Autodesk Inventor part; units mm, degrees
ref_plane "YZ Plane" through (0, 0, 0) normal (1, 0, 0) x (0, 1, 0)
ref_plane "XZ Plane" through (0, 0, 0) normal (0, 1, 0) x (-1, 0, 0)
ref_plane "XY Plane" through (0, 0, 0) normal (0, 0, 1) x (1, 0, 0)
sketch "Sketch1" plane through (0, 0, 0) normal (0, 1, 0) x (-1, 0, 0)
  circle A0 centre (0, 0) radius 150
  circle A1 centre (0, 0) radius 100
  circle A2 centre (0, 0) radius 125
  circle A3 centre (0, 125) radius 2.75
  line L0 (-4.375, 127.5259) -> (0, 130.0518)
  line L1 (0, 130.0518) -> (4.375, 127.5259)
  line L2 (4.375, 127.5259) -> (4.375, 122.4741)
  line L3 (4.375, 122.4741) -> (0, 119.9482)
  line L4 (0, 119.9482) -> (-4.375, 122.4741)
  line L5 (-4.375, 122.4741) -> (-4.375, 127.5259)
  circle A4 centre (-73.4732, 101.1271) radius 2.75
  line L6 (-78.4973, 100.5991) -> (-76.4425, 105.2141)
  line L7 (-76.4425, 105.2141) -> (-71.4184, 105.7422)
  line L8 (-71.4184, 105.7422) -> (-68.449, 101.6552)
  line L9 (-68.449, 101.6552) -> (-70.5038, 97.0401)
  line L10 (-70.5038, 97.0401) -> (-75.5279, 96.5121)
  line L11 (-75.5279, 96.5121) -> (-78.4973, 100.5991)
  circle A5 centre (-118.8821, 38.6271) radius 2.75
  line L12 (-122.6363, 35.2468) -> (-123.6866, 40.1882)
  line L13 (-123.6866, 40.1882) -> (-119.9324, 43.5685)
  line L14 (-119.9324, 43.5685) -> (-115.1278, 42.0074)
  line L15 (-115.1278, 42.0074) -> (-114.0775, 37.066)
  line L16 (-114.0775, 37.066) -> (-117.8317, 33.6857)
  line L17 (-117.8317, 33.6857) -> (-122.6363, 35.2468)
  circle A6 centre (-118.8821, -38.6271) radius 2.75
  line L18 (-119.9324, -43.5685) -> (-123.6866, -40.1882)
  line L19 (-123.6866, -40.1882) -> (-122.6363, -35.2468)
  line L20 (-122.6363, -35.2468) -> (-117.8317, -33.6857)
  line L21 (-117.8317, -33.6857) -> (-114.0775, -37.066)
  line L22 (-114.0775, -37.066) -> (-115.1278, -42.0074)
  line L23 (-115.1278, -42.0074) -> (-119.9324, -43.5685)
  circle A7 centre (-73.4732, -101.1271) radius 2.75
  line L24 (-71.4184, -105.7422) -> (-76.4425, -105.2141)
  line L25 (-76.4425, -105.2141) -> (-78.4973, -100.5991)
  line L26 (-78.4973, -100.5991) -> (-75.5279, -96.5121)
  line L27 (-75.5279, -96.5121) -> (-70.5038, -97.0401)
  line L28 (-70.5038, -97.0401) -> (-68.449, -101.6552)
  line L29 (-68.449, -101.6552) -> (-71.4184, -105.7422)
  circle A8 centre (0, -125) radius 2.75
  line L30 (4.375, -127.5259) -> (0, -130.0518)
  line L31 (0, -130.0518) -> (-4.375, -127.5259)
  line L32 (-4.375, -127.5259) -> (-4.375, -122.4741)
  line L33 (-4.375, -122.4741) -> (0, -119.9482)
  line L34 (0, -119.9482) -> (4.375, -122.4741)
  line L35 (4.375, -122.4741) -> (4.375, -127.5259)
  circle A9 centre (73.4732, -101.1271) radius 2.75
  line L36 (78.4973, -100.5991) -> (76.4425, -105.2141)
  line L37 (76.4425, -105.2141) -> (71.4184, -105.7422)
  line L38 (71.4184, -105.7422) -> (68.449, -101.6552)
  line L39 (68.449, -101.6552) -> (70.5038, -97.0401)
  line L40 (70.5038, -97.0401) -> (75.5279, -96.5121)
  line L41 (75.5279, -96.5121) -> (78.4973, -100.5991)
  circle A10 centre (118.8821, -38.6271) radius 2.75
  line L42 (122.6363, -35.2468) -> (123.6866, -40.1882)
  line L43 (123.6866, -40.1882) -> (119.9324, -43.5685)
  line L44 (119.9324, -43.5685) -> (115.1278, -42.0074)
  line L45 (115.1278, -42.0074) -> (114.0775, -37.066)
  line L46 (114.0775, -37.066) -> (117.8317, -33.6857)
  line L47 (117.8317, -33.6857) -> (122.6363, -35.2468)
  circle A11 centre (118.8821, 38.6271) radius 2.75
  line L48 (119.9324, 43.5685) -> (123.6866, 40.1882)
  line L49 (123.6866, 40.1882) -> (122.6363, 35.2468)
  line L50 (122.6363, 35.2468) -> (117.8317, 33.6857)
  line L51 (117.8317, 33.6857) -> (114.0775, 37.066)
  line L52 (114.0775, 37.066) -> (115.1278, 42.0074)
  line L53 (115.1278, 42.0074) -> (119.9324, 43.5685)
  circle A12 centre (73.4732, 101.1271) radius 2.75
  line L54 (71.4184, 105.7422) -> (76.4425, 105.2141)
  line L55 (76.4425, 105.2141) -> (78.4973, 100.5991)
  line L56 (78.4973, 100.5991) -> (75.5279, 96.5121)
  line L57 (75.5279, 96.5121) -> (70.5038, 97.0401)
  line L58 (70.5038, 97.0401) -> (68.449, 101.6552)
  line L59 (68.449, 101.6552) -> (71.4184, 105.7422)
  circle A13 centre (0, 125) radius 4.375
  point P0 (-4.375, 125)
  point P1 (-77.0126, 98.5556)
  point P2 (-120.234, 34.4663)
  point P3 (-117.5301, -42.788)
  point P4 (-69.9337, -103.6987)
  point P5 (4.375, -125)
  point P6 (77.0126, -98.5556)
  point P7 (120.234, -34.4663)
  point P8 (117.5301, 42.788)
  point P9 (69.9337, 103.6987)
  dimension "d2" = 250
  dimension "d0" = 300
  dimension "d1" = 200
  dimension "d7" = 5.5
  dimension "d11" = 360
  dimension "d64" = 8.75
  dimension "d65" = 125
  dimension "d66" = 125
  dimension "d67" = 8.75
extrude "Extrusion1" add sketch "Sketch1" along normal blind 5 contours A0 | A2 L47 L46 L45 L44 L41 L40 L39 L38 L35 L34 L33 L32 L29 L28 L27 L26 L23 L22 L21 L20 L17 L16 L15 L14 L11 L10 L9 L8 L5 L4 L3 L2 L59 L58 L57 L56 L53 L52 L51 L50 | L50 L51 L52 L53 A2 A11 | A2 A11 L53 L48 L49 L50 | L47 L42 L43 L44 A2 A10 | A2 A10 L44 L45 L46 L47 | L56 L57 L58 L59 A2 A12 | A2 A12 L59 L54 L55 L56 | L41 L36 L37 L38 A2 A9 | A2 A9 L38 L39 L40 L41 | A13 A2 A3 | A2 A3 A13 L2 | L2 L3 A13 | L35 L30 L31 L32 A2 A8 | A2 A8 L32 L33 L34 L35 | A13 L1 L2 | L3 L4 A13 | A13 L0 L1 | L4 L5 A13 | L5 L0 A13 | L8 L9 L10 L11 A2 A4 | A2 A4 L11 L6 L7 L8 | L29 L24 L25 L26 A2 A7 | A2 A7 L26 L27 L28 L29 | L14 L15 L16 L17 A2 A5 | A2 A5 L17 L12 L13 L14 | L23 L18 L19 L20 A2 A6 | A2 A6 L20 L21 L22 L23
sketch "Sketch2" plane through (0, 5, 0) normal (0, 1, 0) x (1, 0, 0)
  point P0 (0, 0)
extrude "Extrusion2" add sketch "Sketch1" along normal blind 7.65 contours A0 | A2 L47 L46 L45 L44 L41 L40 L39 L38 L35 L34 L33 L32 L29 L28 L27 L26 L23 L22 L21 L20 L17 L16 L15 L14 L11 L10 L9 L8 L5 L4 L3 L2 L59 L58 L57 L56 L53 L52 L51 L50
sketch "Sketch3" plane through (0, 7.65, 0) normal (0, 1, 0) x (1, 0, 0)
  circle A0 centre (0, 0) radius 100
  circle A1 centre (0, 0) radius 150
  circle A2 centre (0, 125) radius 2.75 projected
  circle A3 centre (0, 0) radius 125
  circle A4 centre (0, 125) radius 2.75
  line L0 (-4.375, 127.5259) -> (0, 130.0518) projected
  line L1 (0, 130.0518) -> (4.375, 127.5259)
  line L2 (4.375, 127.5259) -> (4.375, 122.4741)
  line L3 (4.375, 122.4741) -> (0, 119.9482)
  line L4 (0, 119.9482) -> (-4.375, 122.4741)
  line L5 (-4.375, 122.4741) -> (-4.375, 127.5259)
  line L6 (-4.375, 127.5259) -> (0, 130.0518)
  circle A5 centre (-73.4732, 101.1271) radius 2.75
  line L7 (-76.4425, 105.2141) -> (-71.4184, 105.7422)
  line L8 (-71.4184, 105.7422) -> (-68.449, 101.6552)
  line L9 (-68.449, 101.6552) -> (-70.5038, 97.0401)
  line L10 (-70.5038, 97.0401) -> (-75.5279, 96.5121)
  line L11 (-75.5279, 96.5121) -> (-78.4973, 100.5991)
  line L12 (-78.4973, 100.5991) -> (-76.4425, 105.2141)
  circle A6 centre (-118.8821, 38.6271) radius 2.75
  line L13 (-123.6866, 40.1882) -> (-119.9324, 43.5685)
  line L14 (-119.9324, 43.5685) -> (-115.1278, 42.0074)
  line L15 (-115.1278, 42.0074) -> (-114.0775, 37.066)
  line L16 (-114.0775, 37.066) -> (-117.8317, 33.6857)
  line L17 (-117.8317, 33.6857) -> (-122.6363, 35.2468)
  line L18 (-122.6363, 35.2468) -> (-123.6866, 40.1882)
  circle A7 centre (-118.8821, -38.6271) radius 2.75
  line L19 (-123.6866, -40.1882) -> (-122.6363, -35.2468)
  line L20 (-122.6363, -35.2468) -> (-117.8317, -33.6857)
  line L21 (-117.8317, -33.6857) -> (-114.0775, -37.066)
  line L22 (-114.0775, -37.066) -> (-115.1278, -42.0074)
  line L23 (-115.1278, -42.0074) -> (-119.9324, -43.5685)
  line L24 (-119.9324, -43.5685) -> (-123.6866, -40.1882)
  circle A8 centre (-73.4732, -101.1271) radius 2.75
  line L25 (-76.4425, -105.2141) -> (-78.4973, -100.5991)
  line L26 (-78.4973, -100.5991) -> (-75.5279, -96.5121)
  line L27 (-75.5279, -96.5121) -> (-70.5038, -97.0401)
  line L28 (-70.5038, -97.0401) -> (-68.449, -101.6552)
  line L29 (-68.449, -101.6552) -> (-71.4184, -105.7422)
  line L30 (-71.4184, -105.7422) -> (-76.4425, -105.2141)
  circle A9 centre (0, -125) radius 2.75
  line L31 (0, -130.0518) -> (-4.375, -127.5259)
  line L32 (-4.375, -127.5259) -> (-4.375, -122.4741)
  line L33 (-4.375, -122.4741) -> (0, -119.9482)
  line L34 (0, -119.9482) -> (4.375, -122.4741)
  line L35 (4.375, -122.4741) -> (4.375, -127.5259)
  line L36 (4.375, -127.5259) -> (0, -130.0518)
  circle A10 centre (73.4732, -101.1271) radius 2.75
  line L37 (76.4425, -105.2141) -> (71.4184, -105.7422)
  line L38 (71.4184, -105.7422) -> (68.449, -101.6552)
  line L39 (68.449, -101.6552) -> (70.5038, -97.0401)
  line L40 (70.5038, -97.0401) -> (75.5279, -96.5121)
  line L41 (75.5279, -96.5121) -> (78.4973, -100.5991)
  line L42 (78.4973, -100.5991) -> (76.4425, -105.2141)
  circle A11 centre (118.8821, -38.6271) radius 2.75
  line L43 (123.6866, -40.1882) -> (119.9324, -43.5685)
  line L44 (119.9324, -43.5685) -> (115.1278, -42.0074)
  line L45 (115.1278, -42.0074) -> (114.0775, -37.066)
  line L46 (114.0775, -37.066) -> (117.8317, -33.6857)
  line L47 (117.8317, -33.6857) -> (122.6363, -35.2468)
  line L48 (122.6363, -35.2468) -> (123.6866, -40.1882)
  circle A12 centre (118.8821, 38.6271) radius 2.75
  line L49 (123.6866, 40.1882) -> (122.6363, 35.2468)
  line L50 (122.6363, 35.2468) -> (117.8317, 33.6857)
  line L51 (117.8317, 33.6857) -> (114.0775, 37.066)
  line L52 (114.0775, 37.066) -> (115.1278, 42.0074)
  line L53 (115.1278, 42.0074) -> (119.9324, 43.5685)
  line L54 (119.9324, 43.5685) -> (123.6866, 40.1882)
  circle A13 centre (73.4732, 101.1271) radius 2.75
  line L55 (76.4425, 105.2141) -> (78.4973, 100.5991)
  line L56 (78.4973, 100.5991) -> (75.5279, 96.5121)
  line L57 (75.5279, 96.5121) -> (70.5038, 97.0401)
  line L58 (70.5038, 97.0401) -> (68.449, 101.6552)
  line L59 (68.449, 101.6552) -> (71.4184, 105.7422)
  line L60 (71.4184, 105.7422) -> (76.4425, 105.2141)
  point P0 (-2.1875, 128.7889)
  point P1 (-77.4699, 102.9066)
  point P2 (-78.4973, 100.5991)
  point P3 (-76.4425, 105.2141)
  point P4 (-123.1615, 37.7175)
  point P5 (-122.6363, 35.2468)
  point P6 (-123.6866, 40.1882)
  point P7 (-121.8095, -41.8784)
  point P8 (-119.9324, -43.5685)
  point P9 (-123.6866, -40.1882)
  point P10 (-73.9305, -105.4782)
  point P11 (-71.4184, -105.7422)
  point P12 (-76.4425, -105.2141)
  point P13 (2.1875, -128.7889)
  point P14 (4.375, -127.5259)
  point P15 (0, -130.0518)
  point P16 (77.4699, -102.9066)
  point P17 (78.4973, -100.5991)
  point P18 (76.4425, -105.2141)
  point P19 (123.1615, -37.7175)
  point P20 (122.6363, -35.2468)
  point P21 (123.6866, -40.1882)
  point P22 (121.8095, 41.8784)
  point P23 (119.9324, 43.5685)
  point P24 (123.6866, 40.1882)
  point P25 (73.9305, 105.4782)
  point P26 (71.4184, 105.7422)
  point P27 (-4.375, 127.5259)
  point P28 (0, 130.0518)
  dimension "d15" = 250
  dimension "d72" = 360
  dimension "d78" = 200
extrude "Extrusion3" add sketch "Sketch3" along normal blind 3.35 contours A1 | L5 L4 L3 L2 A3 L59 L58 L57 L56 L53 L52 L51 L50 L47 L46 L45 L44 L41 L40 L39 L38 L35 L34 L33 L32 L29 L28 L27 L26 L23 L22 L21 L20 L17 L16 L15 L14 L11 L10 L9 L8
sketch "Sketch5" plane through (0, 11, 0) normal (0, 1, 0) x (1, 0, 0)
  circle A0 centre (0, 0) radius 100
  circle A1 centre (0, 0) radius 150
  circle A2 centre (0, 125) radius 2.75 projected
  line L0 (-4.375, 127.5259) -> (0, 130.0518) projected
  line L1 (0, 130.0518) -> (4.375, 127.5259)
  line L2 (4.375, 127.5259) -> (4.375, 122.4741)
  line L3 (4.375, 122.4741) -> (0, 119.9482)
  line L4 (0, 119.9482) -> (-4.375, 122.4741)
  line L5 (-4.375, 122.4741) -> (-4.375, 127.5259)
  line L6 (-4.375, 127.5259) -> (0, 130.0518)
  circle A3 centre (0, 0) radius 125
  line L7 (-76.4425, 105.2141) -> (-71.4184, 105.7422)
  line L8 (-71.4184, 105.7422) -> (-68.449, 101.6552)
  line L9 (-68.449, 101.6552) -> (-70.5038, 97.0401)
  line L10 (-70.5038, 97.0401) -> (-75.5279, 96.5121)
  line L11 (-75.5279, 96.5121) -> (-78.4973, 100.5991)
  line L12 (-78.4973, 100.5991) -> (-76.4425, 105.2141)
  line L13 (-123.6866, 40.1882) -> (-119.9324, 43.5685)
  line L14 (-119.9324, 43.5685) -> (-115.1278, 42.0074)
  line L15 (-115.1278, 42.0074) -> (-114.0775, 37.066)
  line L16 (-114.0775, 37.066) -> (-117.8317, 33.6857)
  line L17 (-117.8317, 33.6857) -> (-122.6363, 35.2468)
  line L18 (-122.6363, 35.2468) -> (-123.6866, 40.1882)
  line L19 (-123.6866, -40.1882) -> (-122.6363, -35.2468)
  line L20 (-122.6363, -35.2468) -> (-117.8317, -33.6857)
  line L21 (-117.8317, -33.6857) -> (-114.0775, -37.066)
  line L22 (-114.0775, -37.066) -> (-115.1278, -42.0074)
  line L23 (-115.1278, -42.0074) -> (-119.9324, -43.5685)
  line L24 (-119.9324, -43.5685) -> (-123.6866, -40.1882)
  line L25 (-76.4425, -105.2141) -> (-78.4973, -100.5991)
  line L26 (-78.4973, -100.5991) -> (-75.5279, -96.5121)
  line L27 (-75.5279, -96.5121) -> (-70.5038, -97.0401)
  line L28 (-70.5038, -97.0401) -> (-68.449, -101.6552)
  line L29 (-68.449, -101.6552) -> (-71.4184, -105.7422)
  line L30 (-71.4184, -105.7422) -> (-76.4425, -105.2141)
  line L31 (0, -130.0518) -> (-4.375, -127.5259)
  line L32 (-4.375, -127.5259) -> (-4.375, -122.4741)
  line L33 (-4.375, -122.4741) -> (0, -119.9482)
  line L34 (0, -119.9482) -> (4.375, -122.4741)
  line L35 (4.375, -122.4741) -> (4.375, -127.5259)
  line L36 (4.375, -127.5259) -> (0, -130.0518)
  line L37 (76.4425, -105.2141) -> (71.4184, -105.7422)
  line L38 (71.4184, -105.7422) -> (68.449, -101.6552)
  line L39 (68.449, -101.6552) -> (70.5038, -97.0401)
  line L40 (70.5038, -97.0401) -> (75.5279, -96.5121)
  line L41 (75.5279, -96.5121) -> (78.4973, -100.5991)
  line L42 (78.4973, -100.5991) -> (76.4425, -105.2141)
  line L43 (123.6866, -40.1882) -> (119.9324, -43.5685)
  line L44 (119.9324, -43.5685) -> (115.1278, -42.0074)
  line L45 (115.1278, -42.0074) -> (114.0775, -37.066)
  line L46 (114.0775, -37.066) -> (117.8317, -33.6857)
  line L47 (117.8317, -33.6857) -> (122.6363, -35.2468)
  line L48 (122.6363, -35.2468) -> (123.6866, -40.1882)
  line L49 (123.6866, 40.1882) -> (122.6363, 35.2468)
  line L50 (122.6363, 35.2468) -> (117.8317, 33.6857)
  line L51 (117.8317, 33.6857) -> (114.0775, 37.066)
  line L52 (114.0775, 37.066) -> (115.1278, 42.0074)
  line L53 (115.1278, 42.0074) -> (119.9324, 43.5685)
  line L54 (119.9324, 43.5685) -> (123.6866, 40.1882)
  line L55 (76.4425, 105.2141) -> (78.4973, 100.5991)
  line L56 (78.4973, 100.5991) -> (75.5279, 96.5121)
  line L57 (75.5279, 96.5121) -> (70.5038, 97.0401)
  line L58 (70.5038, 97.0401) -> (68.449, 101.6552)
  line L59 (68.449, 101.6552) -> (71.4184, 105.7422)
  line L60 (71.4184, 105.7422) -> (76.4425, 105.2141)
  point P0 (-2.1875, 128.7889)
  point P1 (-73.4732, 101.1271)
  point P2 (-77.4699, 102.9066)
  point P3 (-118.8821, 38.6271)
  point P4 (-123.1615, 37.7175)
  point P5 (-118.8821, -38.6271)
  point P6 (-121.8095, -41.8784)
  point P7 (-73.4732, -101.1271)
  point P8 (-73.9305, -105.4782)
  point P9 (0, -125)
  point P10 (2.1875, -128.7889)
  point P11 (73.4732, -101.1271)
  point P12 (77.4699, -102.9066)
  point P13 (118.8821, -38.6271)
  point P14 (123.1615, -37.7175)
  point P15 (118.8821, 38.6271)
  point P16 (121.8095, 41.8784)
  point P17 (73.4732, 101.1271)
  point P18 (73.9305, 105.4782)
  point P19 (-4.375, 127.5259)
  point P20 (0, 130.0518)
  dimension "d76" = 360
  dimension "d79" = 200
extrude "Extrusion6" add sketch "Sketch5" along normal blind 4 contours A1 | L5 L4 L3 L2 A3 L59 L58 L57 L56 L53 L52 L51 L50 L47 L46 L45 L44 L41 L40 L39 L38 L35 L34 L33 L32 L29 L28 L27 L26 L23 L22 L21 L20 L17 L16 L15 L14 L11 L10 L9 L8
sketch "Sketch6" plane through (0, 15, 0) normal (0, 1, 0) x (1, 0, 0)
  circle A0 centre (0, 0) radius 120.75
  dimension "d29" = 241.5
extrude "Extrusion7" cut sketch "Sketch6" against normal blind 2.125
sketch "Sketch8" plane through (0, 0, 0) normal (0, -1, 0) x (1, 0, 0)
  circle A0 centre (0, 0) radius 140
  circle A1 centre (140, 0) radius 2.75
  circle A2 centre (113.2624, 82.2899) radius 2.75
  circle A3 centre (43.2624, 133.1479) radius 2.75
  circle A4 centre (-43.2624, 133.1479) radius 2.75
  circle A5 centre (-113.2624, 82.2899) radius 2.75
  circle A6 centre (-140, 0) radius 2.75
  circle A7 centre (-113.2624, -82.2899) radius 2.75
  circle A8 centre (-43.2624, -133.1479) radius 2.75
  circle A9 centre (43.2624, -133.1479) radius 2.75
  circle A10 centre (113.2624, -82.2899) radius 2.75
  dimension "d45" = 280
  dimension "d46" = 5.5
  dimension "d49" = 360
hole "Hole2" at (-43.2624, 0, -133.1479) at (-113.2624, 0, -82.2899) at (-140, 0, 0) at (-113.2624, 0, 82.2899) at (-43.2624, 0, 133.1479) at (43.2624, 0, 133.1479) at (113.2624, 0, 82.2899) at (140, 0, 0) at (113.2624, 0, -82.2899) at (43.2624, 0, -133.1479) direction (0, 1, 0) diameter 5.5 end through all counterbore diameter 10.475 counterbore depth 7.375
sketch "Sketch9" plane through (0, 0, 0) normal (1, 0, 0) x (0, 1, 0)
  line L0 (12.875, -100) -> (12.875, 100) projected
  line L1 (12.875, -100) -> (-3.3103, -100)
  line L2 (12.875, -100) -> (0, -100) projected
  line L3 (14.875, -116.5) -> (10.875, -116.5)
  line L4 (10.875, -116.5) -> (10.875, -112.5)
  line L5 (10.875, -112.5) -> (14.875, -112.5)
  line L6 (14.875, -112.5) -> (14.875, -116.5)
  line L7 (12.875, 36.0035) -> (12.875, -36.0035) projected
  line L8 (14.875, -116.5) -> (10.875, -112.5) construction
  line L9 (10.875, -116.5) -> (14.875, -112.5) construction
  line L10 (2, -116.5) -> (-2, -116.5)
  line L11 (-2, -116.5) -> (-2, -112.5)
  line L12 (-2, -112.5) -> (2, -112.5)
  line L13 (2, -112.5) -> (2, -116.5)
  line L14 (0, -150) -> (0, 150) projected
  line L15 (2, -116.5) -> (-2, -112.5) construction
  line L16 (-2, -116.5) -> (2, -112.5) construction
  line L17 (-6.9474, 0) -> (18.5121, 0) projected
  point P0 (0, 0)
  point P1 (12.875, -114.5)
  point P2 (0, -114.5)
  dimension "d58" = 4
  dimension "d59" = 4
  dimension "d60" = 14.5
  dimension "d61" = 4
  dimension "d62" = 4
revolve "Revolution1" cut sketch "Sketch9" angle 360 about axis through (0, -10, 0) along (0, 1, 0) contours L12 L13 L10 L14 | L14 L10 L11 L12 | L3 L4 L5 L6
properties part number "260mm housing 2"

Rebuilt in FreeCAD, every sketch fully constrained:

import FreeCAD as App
import Part
import Sketcher
from FreeCAD import Vector
Q = App.Units.Quantity


def add_polygon(sketch, points):
    """Adds a closed chain of lines whose ends are joined by coincident constraints."""
    first, n = sketch.GeometryCount, len(points)
    for a, b in zip(points, points[1:] + points[:1]):
        sketch.addGeometry(Part.LineSegment(App.Vector(*a, 0), App.Vector(*b, 0)), False)
    for i in range(n):
        sketch.addConstraint(Sketcher.Constraint("Coincident", first + i, 2, first + (i + 1) % n, 1))

doc = App.newDocument("Part")
body = doc.addObject("PartDesign::Body", "Body")

# Sketch on XZ plane
sketch1 = body.newObject("Sketcher::SketchObject", "Sketch")
sketch1.AttachmentSupport = (doc.getObject("XZ_Plane"), [""])
sketch1.MapMode = "FlatFace"
sketch1.addGeometry([
    Part.Circle(Vector(0, 0, 0), Vector(0, 0, 1), 150),  # 0
    Part.Circle(Vector(0, 0, 0), Vector(0, 0, 1), 100),  # 1
    Part.Circle(Vector(-118.8821, 38.6271, 0), Vector(0, 0, 1), 2.75),  # 2
    Part.Circle(Vector(-73.4732, 101.1271, 0), Vector(0, 0, 1), 2.75),  # 3
    Part.Circle(Vector(0, 125, 0), Vector(0, 0, 1), 2.75),  # 4
    Part.Circle(Vector(73.4732, 101.1271, 0), Vector(0, 0, 1), 2.75),  # 5
    Part.Circle(Vector(118.8821, 38.6271, 0), Vector(0, 0, 1), 2.75),  # 6
    Part.Circle(Vector(118.8821, -38.6271, 0), Vector(0, 0, 1), 2.75),  # 7
    Part.Circle(Vector(73.4732, -101.1271, 0), Vector(0, 0, 1), 2.75),  # 8
    Part.Circle(Vector(0, -125, 0), Vector(0, 0, 1), 2.75),  # 9
    Part.Circle(Vector(-73.4732, -101.1271, 0), Vector(0, 0, 1), 2.75),  # 10
    Part.Circle(Vector(-118.8821, -38.6271, 0), Vector(0, 0, 1), 2.75),  # 11
], False)
sketch1.addConstraint([
    Sketcher.Constraint("Coincident", 0, 3, -1, 1),
    Sketcher.Constraint("Coincident", 1, 3, -1, 1),
    Sketcher.Constraint("Equal", 2, 3),
    Sketcher.Constraint("Equal", 3, 4),
    Sketcher.Constraint("Equal", 4, 5),
    Sketcher.Constraint("Equal", 5, 6),
    Sketcher.Constraint("Equal", 6, 7),
    Sketcher.Constraint("Equal", 7, 8),
    Sketcher.Constraint("Equal", 8, 9),
    Sketcher.Constraint("Equal", 9, 10),
    Sketcher.Constraint("Equal", 10, 11),
    Sketcher.Constraint("Symmetric", 2, 3, 7, 3, -1, 1),
    Sketcher.Constraint("Symmetric", 3, 3, 8, 3, -1, 1),
    Sketcher.Constraint("Symmetric", 4, 3, 9, 3, -1, 1),
    Sketcher.Constraint("Symmetric", 5, 3, 10, 3, -1, 1),
    Sketcher.Constraint("Symmetric", 6, 3, 11, 3, -1, 1),
    Sketcher.Constraint("Symmetric", 3, 3, 5, 3, -2),
    Sketcher.Constraint("Symmetric", 2, 3, 6, 3, -2),
    Sketcher.Constraint("PointOnObject", 4, 3, -2),
    Sketcher.Constraint("Diameter", 0, Q("300 mm")),
    Sketcher.Constraint("Diameter", 1, Q("200 mm")),
    Sketcher.Constraint("Diameter", 2, Q("5.5 mm")),
    Sketcher.Constraint("DistanceY", -1, 1, 4, 3, Q("125 mm")),
    Sketcher.Constraint("DistanceY", 2, 3, 3, 3, Q("62.5 mm")),
    Sketcher.Constraint("DistanceX", 2, 3, -1, 1, Q("118.882 mm")),
    Sketcher.Constraint("DistanceY", -1, 1, 2, 3, Q("38.627 mm")),
    Sketcher.Constraint("DistanceX", 2, 3, 3, 3, Q("45.409 mm")),
])
pad1 = body.newObject("PartDesign::Pad", "Pad")
pad1.Profile = sketch1
pad1.Length = 5
pad1.Reversed = True

# Sketch on XZ plane
sketch2 = body.newObject("Sketcher::SketchObject", "Sketch001")
sketch2.AttachmentSupport = (doc.getObject("XZ_Plane"), [""])
sketch2.MapMode = "FlatFace"
sketch2.addGeometry(Part.Circle(Vector(0, 0, 0), Vector(0, 0, 1), 150), False)  # 0
add_polygon(sketch2, [(-122.6363, 35.2468), (-117.8317, 33.6857), (-114.0775, 37.066), (-115.1278, 42.0074), (-119.9324, 43.5685), (-123.6866, 40.1882)])  # lines 1-6
add_polygon(sketch2, [(-78.4973, 100.5991), (-75.5279, 96.5121), (-70.5038, 97.0401), (-68.449, 101.6552), (-71.4184, 105.7422), (-76.4425, 105.2141)])  # lines 7-12
add_polygon(sketch2, [(-4.375, 122.4741), (0, 119.9482), (4.375, 122.4741), (4.375, 127.5259), (0, 130.0518), (-4.375, 127.5259)])  # lines 13-18
add_polygon(sketch2, [(71.4184, 105.7422), (68.449, 101.6552), (70.5038, 97.0401), (75.5279, 96.5121), (78.4973, 100.5991), (76.4425, 105.2141)])  # lines 19-24
add_polygon(sketch2, [(119.9324, 43.5685), (115.1278, 42.0074), (114.0775, 37.066), (117.8317, 33.6857), (122.6363, 35.2468), (123.6866, 40.1882)])  # lines 25-30
add_polygon(sketch2, [(122.6363, -35.2468), (117.8317, -33.6857), (114.0775, -37.066), (115.1278, -42.0074), (119.9324, -43.5685), (123.6866, -40.1882)])  # lines 31-36
add_polygon(sketch2, [(78.4973, -100.5991), (75.5279, -96.5121), (70.5038, -97.0401), (68.449, -101.6552), (71.4184, -105.7422), (76.4425, -105.2141)])  # lines 37-42
add_polygon(sketch2, [(4.375, -127.5259), (4.375, -122.4741), (0, -119.9482), (-4.375, -122.4741), (-4.375, -127.5259), (0, -130.0518)])  # lines 43-48
add_polygon(sketch2, [(-71.4184, -105.7422), (-68.449, -101.6552), (-70.5038, -97.0401), (-75.5279, -96.5121), (-78.4973, -100.5991), (-76.4425, -105.2141)])  # lines 49-54
add_polygon(sketch2, [(-119.9324, -43.5685), (-115.1278, -42.0074), (-114.0775, -37.066), (-117.8317, -33.6857), (-122.6363, -35.2468), (-123.6866, -40.1882)])  # lines 55-60
sketch2.addGeometry(Part.Circle(Vector(0, 0, 0), Vector(0, 0, 1), 100), False)  # 61
sketch2.addConstraint([
    Sketcher.Constraint("Vertical", 15),
    Sketcher.Constraint("Vertical", 18),
    Sketcher.Constraint("Vertical", 43),
    Sketcher.Constraint("Vertical", 46),
    Sketcher.Constraint("Coincident", 0, 3, -1, 1),
    Sketcher.Constraint("Coincident", 61, 3, -1, 1),
    Sketcher.Constraint("Symmetric", 1, 2, 31, 2, -1, 1),
    Sketcher.Constraint("Symmetric", 2, 2, 32, 2, -1, 1),
    Sketcher.Constraint("Symmetric", 3, 2, 33, 2, -1, 1),
    Sketcher.Constraint("Symmetric", 4, 2, 34, 2, -1, 1),
    Sketcher.Constraint("Symmetric", 5, 2, 35, 2, -1, 1),
    Sketcher.Constraint("Symmetric", 6, 2, 36, 2, -1, 1),
    Sketcher.Constraint("Symmetric", 7, 2, 37, 2, -1, 1),
    Sketcher.Constraint("Symmetric", 8, 2, 38, 2, -1, 1),
    Sketcher.Constraint("Symmetric", 9, 2, 39, 2, -1, 1),
    Sketcher.Constraint("Symmetric", 10, 2, 40, 2, -1, 1),
    Sketcher.Constraint("Symmetric", 11, 2, 41, 2, -1, 1),
    Sketcher.Constraint("Symmetric", 12, 2, 42, 2, -1, 1),
    Sketcher.Constraint("Symmetric", 18, 2, 43, 2, -1, 1),
    Sketcher.Constraint("Symmetric", 13, 2, 44, 2, -1, 1),
    Sketcher.Constraint("Symmetric", 14, 2, 45, 2, -1, 1),
    Sketcher.Constraint("Symmetric", 16, 2, 47, 2, -1, 1),
    Sketcher.Constraint("Symmetric", 19, 2, 49, 2, -1, 1),
    Sketcher.Constraint("Symmetric", 20, 2, 50, 2, -1, 1),
    Sketcher.Constraint("Symmetric", 21, 2, 51, 2, -1, 1),
    Sketcher.Constraint("Symmetric", 22, 2, 52, 2, -1, 1),
    Sketcher.Constraint("Symmetric", 23, 2, 53, 2, -1, 1),
    Sketcher.Constraint("Symmetric", 24, 2, 54, 2, -1, 1),
    Sketcher.Constraint("Symmetric", 25, 2, 55, 2, -1, 1),
    Sketcher.Constraint("Symmetric", 26, 2, 56, 2, -1, 1),
    Sketcher.Constraint("Symmetric", 27, 2, 57, 2, -1, 1),
    Sketcher.Constraint("Symmetric", 28, 2, 58, 2, -1, 1),
    Sketcher.Constraint("Symmetric", 29, 2, 59, 2, -1, 1),
    Sketcher.Constraint("Symmetric", 30, 2, 60, 2, -1, 1),
    Sketcher.Constraint("Symmetric", 15, 2, 17, 2, -2),
    Sketcher.Constraint("Symmetric", 9, 2, 19, 2, -2),
    Sketcher.Constraint("Symmetric", 8, 2, 20, 2, -2),
    Sketcher.Constraint("Symmetric", 7, 2, 21, 2, -2),
    Sketcher.Constraint("Symmetric", 12, 2, 22, 2, -2),
    Sketcher.Constraint("Symmetric", 11, 2, 23, 2, -2),
    Sketcher.Constraint("Symmetric", 10, 2, 24, 2, -2),
    Sketcher.Constraint("Symmetric", 3, 2, 25, 2, -2),
    Sketcher.Constraint("Symmetric", 2, 2, 26, 2, -2),
    Sketcher.Constraint("Symmetric", 1, 2, 27, 2, -2),
    Sketcher.Constraint("Symmetric", 6, 2, 28, 2, -2),
    Sketcher.Constraint("Symmetric", 5, 2, 29, 2, -2),
    Sketcher.Constraint("Symmetric", 4, 2, 30, 2, -2),
    Sketcher.Constraint("PointOnObject", 13, 2, -2),
    Sketcher.Constraint("PointOnObject", 16, 2, -2),
    Sketcher.Constraint("Parallel", 1, 4),
    Sketcher.Constraint("Parallel", 2, 5),
    Sketcher.Constraint("Parallel", 3, 6),
    Sketcher.Constraint("Parallel", 7, 10),
    Sketcher.Constraint("Parallel", 8, 11),
    Sketcher.Constraint("Parallel", 9, 12),
    Sketcher.Constraint("Parallel", 13, 16),
    Sketcher.Constraint("Parallel", 14, 17),
    Sketcher.Constraint("Parallel", 44, 47),
    Sketcher.Constraint("Parallel", 45, 48),
    Sketcher.Constraint("Equal", 1, 2),
    Sketcher.Constraint("Equal", 2, 3),
    Sketcher.Constraint("Equal", 3, 4),
    Sketcher.Constraint("Equal", 6, 7),
    Sketcher.Constraint("Equal", 7, 8),
    Sketcher.Constraint("Equal", 8, 9),
    Sketcher.Constraint("Equal", 9, 10),
    Sketcher.Constraint("Equal", 12, 13),
    Sketcher.Constraint("Diameter", 0, Q("300 mm")),
    Sketcher.Constraint("Diameter", 61, Q("200 mm")),
    Sketcher.Constraint("Angle", 1, Q("-18 deg")),
    Sketcher.Constraint("Angle", 2, Q("42 deg")),
    Sketcher.Constraint("Angle", 3, Q("101.9997 deg")),
    Sketcher.Constraint("Angle", 7, Q("-53.9998 deg")),
    Sketcher.Constraint("Angle", 8, Q("5.9994 deg")),
    Sketcher.Constraint("Angle", 9, Q("65.9997 deg")),
    Sketcher.Constraint("Angle", 13, Q("-30 deg")),
    Sketcher.Constraint("DistanceY", -1, 1, 8, 2, Q("97.04 mm")),
    Sketcher.Constraint("DistanceY", 15, 1, 15, 2, Q("5.0518 mm")),
    Sketcher.Constraint("DistanceY", -1, 1, 2, 2, Q("37.066 mm")),
    Sketcher.Constraint("DistanceX", 7, 2, -1, 1, Q("75.528 mm")),
    Sketcher.Constraint("DistanceY", -1, 1, 7, 2, Q("96.512 mm")),
    Sketcher.Constraint("DistanceY", -1, 1, 14, 2, Q("122.474 mm")),
    Sketcher.Constraint("DistanceX", 1, 2, -1, 1, Q("117.8317 mm")),
])
pad2 = body.newObject("PartDesign::Pad", "Pad001")
pad2.Profile = sketch2
pad2.Length = 7.65
pad2.Reversed = True

# Sketch on XZ plane
sketch3 = body.newObject("Sketcher::SketchObject", "Sketch002")
sketch3.AttachmentSupport = (doc.getObject("XZ_Plane"), [""])
sketch3.MapMode = "FlatFace"
sketch3.AttachmentOffset = App.Placement(Vector(0, 0, -7.65), App.Rotation())
sketch3.addGeometry(Part.Circle(Vector(0, 0, 0), Vector(0, 0, 1), 150), False)  # 0
add_polygon(sketch3, [(-71.4184, -105.7422), (-68.449, -101.6552), (-70.5038, -97.0401), (-75.5279, -96.5121), (-78.4973, -100.5991), (-76.4425, -105.2141)])  # lines 1-6
add_polygon(sketch3, [(-119.9324, -43.5685), (-115.1278, -42.0074), (-114.0775, -37.066), (-117.8317, -33.6857), (-122.6363, -35.2468), (-123.6866, -40.1882)])  # lines 7-12
add_polygon(sketch3, [(-122.6363, 35.2468), (-117.8317, 33.6857), (-114.0775, 37.066), (-115.1278, 42.0074), (-119.9324, 43.5685), (-123.6866, 40.1882)])  # lines 13-18
add_polygon(sketch3, [(-78.4973, 100.5991), (-75.5279, 96.5121), (-70.5038, 97.0401), (-68.449, 101.6552), (-71.4184, 105.7422), (-76.4425, 105.2141)])  # lines 19-24
add_polygon(sketch3, [(-4.375, 127.5259), (-4.375, 122.4741), (0, 119.9482), (4.375, 122.4741), (4.375, 127.5259), (0, 130.0518)])  # lines 25-30
add_polygon(sketch3, [(71.4184, 105.7422), (68.449, 101.6552), (70.5038, 97.0401), (75.5279, 96.5121), (78.4973, 100.5991), (76.4425, 105.2141)])  # lines 31-36
add_polygon(sketch3, [(119.9324, 43.5685), (115.1278, 42.0074), (114.0775, 37.066), (117.8317, 33.6857), (122.6363, 35.2468), (123.6866, 40.1882)])  # lines 37-42
add_polygon(sketch3, [(122.6363, -35.2468), (117.8317, -33.6857), (114.0775, -37.066), (115.1278, -42.0074), (119.9324, -43.5685), (123.6866, -40.1882)])  # lines 43-48
add_polygon(sketch3, [(78.4973, -100.5991), (75.5279, -96.5121), (70.5038, -97.0401), (68.449, -101.6552), (71.4184, -105.7422), (76.4425, -105.2141)])  # lines 49-54
add_polygon(sketch3, [(4.375, -127.5259), (4.375, -122.4741), (0, -119.9482), (-4.375, -122.4741), (-4.375, -127.5259), (0, -130.0518)])  # lines 55-60
sketch3.addGeometry(Part.Circle(Vector(0, 0, 0), Vector(0, 0, 1), 100), False)  # 61
sketch3.addConstraint([
    Sketcher.Constraint("Vertical", 25),
    Sketcher.Constraint("Vertical", 28),
    Sketcher.Constraint("Vertical", 55),
    Sketcher.Constraint("Vertical", 58),
    Sketcher.Constraint("Coincident", 0, 3, -1, 1),
    Sketcher.Constraint("Coincident", 61, 3, -1, 1),
    Sketcher.Constraint("Symmetric", 1, 2, 31, 2, -1, 1),
    Sketcher.Constraint("Symmetric", 2, 2, 32, 2, -1, 1),
    Sketcher.Constraint("Symmetric", 3, 2, 33, 2, -1, 1),
    Sketcher.Constraint("Symmetric", 4, 2, 34, 2, -1, 1),
    Sketcher.Constraint("Symmetric", 5, 2, 35, 2, -1, 1),
    Sketcher.Constraint("Symmetric", 6, 2, 36, 2, -1, 1),
    Sketcher.Constraint("Symmetric", 7, 2, 37, 2, -1, 1),
    Sketcher.Constraint("Symmetric", 8, 2, 38, 2, -1, 1),
    Sketcher.Constraint("Symmetric", 9, 2, 39, 2, -1, 1),
    Sketcher.Constraint("Symmetric", 10, 2, 40, 2, -1, 1),
    Sketcher.Constraint("Symmetric", 11, 2, 41, 2, -1, 1),
    Sketcher.Constraint("Symmetric", 12, 2, 42, 2, -1, 1),
    Sketcher.Constraint("Symmetric", 13, 2, 43, 2, -1, 1),
    Sketcher.Constraint("Symmetric", 14, 2, 44, 2, -1, 1),
    Sketcher.Constraint("Symmetric", 15, 2, 45, 2, -1, 1),
    Sketcher.Constraint("Symmetric", 16, 2, 46, 2, -1, 1),
    Sketcher.Constraint("Symmetric", 17, 2, 47, 2, -1, 1),
    Sketcher.Constraint("Symmetric", 18, 2, 48, 2, -1, 1),
    Sketcher.Constraint("Symmetric", 19, 2, 49, 2, -1, 1),
    Sketcher.Constraint("Symmetric", 20, 2, 50, 2, -1, 1),
    Sketcher.Constraint("Symmetric", 21, 2, 51, 2, -1, 1),
    Sketcher.Constraint("Symmetric", 22, 2, 52, 2, -1, 1),
    Sketcher.Constraint("Symmetric", 23, 2, 53, 2, -1, 1),
    Sketcher.Constraint("Symmetric", 24, 2, 54, 2, -1, 1),
    Sketcher.Constraint("Symmetric", 25, 2, 55, 2, -1, 1),
    Sketcher.Constraint("Symmetric", 26, 2, 56, 2, -1, 1),
    Sketcher.Constraint("Symmetric", 27, 2, 57, 2, -1, 1),
    Sketcher.Constraint("Symmetric", 29, 2, 59, 2, -1, 1),
    Sketcher.Constraint("Symmetric", 25, 2, 27, 2, -2),
    Sketcher.Constraint("Symmetric", 21, 2, 31, 2, -2),
    Sketcher.Constraint("Symmetric", 20, 2, 32, 2, -2),
    Sketcher.Constraint("Symmetric", 19, 2, 33, 2, -2),
    Sketcher.Constraint("Symmetric", 24, 2, 34, 2, -2),
    Sketcher.Constraint("Symmetric", 23, 2, 35, 2, -2),
    Sketcher.Constraint("Symmetric", 22, 2, 36, 2, -2),
    Sketcher.Constraint("Symmetric", 15, 2, 37, 2, -2),
    Sketcher.Constraint("Symmetric", 14, 2, 38, 2, -2),
    Sketcher.Constraint("Symmetric", 13, 2, 39, 2, -2),
    Sketcher.Constraint("Symmetric", 18, 2, 40, 2, -2),
    Sketcher.Constraint("Symmetric", 17, 2, 41, 2, -2),
    Sketcher.Constraint("Symmetric", 16, 2, 42, 2, -2),
    Sketcher.Constraint("PointOnObject", 26, 2, -2),
    Sketcher.Constraint("PointOnObject", 29, 2, -2),
    Sketcher.Constraint("Parallel", 1, 4),
    Sketcher.Constraint("Parallel", 2, 5),
    Sketcher.Constraint("Parallel", 3, 6),
    Sketcher.Constraint("Parallel", 7, 10),
    Sketcher.Constraint("Parallel", 8, 11),
    Sketcher.Constraint("Parallel", 9, 12),
    Sketcher.Constraint("Parallel", 26, 29),
    Sketcher.Constraint("Parallel", 27, 30),
    Sketcher.Constraint("Parallel", 56, 59),
    Sketcher.Constraint("Parallel", 57, 60),
    Sketcher.Constraint("Equal", 1, 2),
    Sketcher.Constraint("Equal", 2, 3),
    Sketcher.Constraint("Equal", 3, 4),
    Sketcher.Constraint("Equal", 6, 7),
    Sketcher.Constraint("Equal", 7, 8),
    Sketcher.Constraint("Equal", 8, 9),
    Sketcher.Constraint("Equal", 9, 10),
    Sketcher.Constraint("Equal", 24, 26),
    Sketcher.Constraint("Diameter", 61, Q("200 mm")),
    Sketcher.Constraint("Diameter", 0, Q("300 mm")),
    Sketcher.Constraint("Angle", 1, Q("53.9998 deg")),
    Sketcher.Constraint("Angle", 2, Q("114.0003 deg")),
    Sketcher.Constraint("Angle", 3, Q("174.0006 deg")),
    Sketcher.Constraint("Angle", 7, Q("18 deg")),
    Sketcher.Constraint("Angle", 8, Q("78.0003 deg")),
    Sketcher.Constraint("Angle", 9, Q("138 deg")),
    Sketcher.Constraint("Angle", 26, Q("-30 deg")),
    Sketcher.Constraint("DistanceY", 2, 2, -1, 1, Q("97.04 mm")),
    Sketcher.Constraint("DistanceY", 25, 2, 25, 1, Q("5.0518 mm")),
    Sketcher.Constraint("DistanceX", 1, 2, -1, 1, Q("68.449 mm")),
    Sketcher.Constraint("DistanceX", 3, 2, -1, 1, Q("75.528 mm")),
    Sketcher.Constraint("DistanceY", 8, 2, -1, 1, Q("37.066 mm")),
    Sketcher.Constraint("DistanceY", -1, 1, 25, 2, Q("122.474 mm")),
    Sketcher.Constraint("DistanceX", 7, 2, -1, 1, Q("115.1278 mm")),
])
pad3 = body.newObject("PartDesign::Pad", "Pad002")
pad3.Profile = sketch3
pad3.Length = 3.35
pad3.Reversed = True

# Sketch on XZ plane
sketch4 = body.newObject("Sketcher::SketchObject", "Sketch003")
sketch4.AttachmentSupport = (doc.getObject("XZ_Plane"), [""])
sketch4.MapMode = "FlatFace"
sketch4.AttachmentOffset = App.Placement(Vector(0, 0, -11), App.Rotation())
sketch4.addGeometry(Part.Circle(Vector(0, 0, 0), Vector(0, 0, 1), 150), False)  # 0
add_polygon(sketch4, [(-71.4184, -105.7422), (-68.449, -101.6552), (-70.5038, -97.0401), (-75.5279, -96.5121), (-78.4973, -100.5991), (-76.4425, -105.2141)])  # lines 1-6
add_polygon(sketch4, [(-119.9324, -43.5685), (-115.1278, -42.0074), (-114.0775, -37.066), (-117.8317, -33.6857), (-122.6363, -35.2468), (-123.6866, -40.1882)])  # lines 7-12
add_polygon(sketch4, [(-122.6363, 35.2468), (-117.8317, 33.6857), (-114.0775, 37.066), (-115.1278, 42.0074), (-119.9324, 43.5685), (-123.6866, 40.1882)])  # lines 13-18
add_polygon(sketch4, [(-78.4973, 100.5991), (-75.5279, 96.5121), (-70.5038, 97.0401), (-68.449, 101.6552), (-71.4184, 105.7422), (-76.4425, 105.2141)])  # lines 19-24
add_polygon(sketch4, [(-4.375, 127.5259), (-4.375, 122.4741), (0, 119.9482), (4.375, 122.4741), (4.375, 127.5259), (0, 130.0518)])  # lines 25-30
add_polygon(sketch4, [(71.4184, 105.7422), (68.449, 101.6552), (70.5038, 97.0401), (75.5279, 96.5121), (78.4973, 100.5991), (76.4425, 105.2141)])  # lines 31-36
add_polygon(sketch4, [(119.9324, 43.5685), (115.1278, 42.0074), (114.0775, 37.066), (117.8317, 33.6857), (122.6363, 35.2468), (123.6866, 40.1882)])  # lines 37-42
add_polygon(sketch4, [(122.6363, -35.2468), (117.8317, -33.6857), (114.0775, -37.066), (115.1278, -42.0074), (119.9324, -43.5685), (123.6866, -40.1882)])  # lines 43-48
add_polygon(sketch4, [(78.4973, -100.5991), (75.5279, -96.5121), (70.5038, -97.0401), (68.449, -101.6552), (71.4184, -105.7422), (76.4425, -105.2141)])  # lines 49-54
add_polygon(sketch4, [(4.375, -127.5259), (4.375, -122.4741), (0, -119.9482), (-4.375, -122.4741), (-4.375, -127.5259), (0, -130.0518)])  # lines 55-60
sketch4.addGeometry(Part.Circle(Vector(0, 0, 0), Vector(0, 0, 1), 100), False)  # 61
sketch4.addConstraint([
    Sketcher.Constraint("Vertical", 25),
    Sketcher.Constraint("Vertical", 28),
    Sketcher.Constraint("Vertical", 55),
    Sketcher.Constraint("Vertical", 58),
    Sketcher.Constraint("Coincident", 0, 3, -1, 1),
    Sketcher.Constraint("Coincident", 61, 3, -1, 1),
    Sketcher.Constraint("Symmetric", 1, 2, 31, 2, -1, 1),
    Sketcher.Constraint("Symmetric", 2, 2, 32, 2, -1, 1),
    Sketcher.Constraint("Symmetric", 3, 2, 33, 2, -1, 1),
    Sketcher.Constraint("Symmetric", 4, 2, 34, 2, -1, 1),
    Sketcher.Constraint("Symmetric", 5, 2, 35, 2, -1, 1),
    Sketcher.Constraint("Symmetric", 6, 2, 36, 2, -1, 1),
    Sketcher.Constraint("Symmetric", 7, 2, 37, 2, -1, 1),
    Sketcher.Constraint("Symmetric", 8, 2, 38, 2, -1, 1),
    Sketcher.Constraint("Symmetric", 9, 2, 39, 2, -1, 1),
    Sketcher.Constraint("Symmetric", 10, 2, 40, 2, -1, 1),
    Sketcher.Constraint("Symmetric", 11, 2, 41, 2, -1, 1),
    Sketcher.Constraint("Symmetric", 12, 2, 42, 2, -1, 1),
    Sketcher.Constraint("Symmetric", 13, 2, 43, 2, -1, 1),
    Sketcher.Constraint("Symmetric", 14, 2, 44, 2, -1, 1),
    Sketcher.Constraint("Symmetric", 15, 2, 45, 2, -1, 1),
    Sketcher.Constraint("Symmetric", 16, 2, 46, 2, -1, 1),
    Sketcher.Constraint("Symmetric", 17, 2, 47, 2, -1, 1),
    Sketcher.Constraint("Symmetric", 18, 2, 48, 2, -1, 1),
    Sketcher.Constraint("Symmetric", 19, 2, 49, 2, -1, 1),
    Sketcher.Constraint("Symmetric", 20, 2, 50, 2, -1, 1),
    Sketcher.Constraint("Symmetric", 21, 2, 51, 2, -1, 1),
    Sketcher.Constraint("Symmetric", 22, 2, 52, 2, -1, 1),
    Sketcher.Constraint("Symmetric", 23, 2, 53, 2, -1, 1),
    Sketcher.Constraint("Symmetric", 24, 2, 54, 2, -1, 1),
    Sketcher.Constraint("Symmetric", 25, 2, 55, 2, -1, 1),
    Sketcher.Constraint("Symmetric", 26, 2, 56, 2, -1, 1),
    Sketcher.Constraint("Symmetric", 27, 2, 57, 2, -1, 1),
    Sketcher.Constraint("Symmetric", 29, 2, 59, 2, -1, 1),
    Sketcher.Constraint("Symmetric", 25, 2, 27, 2, -2),
    Sketcher.Constraint("Symmetric", 21, 2, 31, 2, -2),
    Sketcher.Constraint("Symmetric", 20, 2, 32, 2, -2),
    Sketcher.Constraint("Symmetric", 19, 2, 33, 2, -2),
    Sketcher.Constraint("Symmetric", 24, 2, 34, 2, -2),
    Sketcher.Constraint("Symmetric", 23, 2, 35, 2, -2),
    Sketcher.Constraint("Symmetric", 22, 2, 36, 2, -2),
    Sketcher.Constraint("Symmetric", 15, 2, 37, 2, -2),
    Sketcher.Constraint("Symmetric", 14, 2, 38, 2, -2),
    Sketcher.Constraint("Symmetric", 13, 2, 39, 2, -2),
    Sketcher.Constraint("Symmetric", 18, 2, 40, 2, -2),
    Sketcher.Constraint("Symmetric", 17, 2, 41, 2, -2),
    Sketcher.Constraint("Symmetric", 16, 2, 42, 2, -2),
    Sketcher.Constraint("PointOnObject", 26, 2, -2),
    Sketcher.Constraint("PointOnObject", 29, 2, -2),
    Sketcher.Constraint("Parallel", 1, 4),
    Sketcher.Constraint("Parallel", 2, 5),
    Sketcher.Constraint("Parallel", 3, 6),
    Sketcher.Constraint("Parallel", 7, 10),
    Sketcher.Constraint("Parallel", 8, 11),
    Sketcher.Constraint("Parallel", 9, 12),
    Sketcher.Constraint("Parallel", 26, 29),
    Sketcher.Constraint("Parallel", 27, 30),
    Sketcher.Constraint("Parallel", 56, 59),
    Sketcher.Constraint("Parallel", 57, 60),
    Sketcher.Constraint("Equal", 1, 2),
    Sketcher.Constraint("Equal", 2, 3),
    Sketcher.Constraint("Equal", 3, 4),
    Sketcher.Constraint("Equal", 6, 7),
    Sketcher.Constraint("Equal", 7, 8),
    Sketcher.Constraint("Equal", 8, 9),
    Sketcher.Constraint("Equal", 9, 10),
    Sketcher.Constraint("Equal", 24, 26),
    Sketcher.Constraint("Diameter", 61, Q("200 mm")),
    Sketcher.Constraint("Diameter", 0, Q("300 mm")),
    Sketcher.Constraint("Angle", 1, Q("53.9998 deg")),
    Sketcher.Constraint("Angle", 2, Q("114.0003 deg")),
    Sketcher.Constraint("Angle", 3, Q("174.0006 deg")),
    Sketcher.Constraint("Angle", 7, Q("18 deg")),
    Sketcher.Constraint("Angle", 8, Q("78.0003 deg")),
    Sketcher.Constraint("Angle", 9, Q("138 deg")),
    Sketcher.Constraint("Angle", 26, Q("-30 deg")),
    Sketcher.Constraint("DistanceY", 2, 2, -1, 1, Q("97.04 mm")),
    Sketcher.Constraint("DistanceY", 25, 2, 25, 1, Q("5.0518 mm")),
    Sketcher.Constraint("DistanceX", 1, 2, -1, 1, Q("68.449 mm")),
    Sketcher.Constraint("DistanceX", 3, 2, -1, 1, Q("75.528 mm")),
    Sketcher.Constraint("DistanceY", 8, 2, -1, 1, Q("37.066 mm")),
    Sketcher.Constraint("DistanceY", -1, 1, 25, 2, Q("122.474 mm")),
    Sketcher.Constraint("DistanceX", 7, 2, -1, 1, Q("115.1278 mm")),
])
pad4 = body.newObject("PartDesign::Pad", "Pad003")
pad4.Profile = sketch4
pad4.Length = 4
pad4.Reversed = True

# Sketch on XZ plane
sketch5 = body.newObject("Sketcher::SketchObject", "Sketch004")
sketch5.AttachmentSupport = (doc.getObject("XZ_Plane"), [""])
sketch5.MapMode = "FlatFace"
sketch5.AttachmentOffset = App.Placement(Vector(0, 0, -15), App.Rotation())
sketch5.addGeometry(Part.Circle(Vector(0, 0, 0), Vector(0, 0, 1), 120.75), False)
sketch5.addConstraint([
    Sketcher.Constraint("Coincident", 0, 3, -1, 1),
    Sketcher.Constraint("Diameter", 0, Q("241.5 mm")),
])
pocket1 = body.newObject("PartDesign::Pocket", "Pocket")
pocket1.Profile = sketch5
pocket1.Length = 2.125
pocket1.Reversed = True

# Sketch on XZ plane
sketch6 = body.newObject("Sketcher::SketchObject", "Sketch005")
sketch6.AttachmentSupport = (doc.getObject("XZ_Plane"), [""])
sketch6.MapMode = "FlatFace"
sketch6.addGeometry([
    Part.Circle(Vector(-43.2624, -133.1479, 0), Vector(0, 0, 1), 2.75),  # 0
    Part.Circle(Vector(-113.2624, -82.2899, 0), Vector(0, 0, 1), 2.75),  # 1
    Part.Circle(Vector(-140, 0, 0), Vector(0, 0, 1), 2.75),  # 2
    Part.Circle(Vector(-113.2624, 82.2899, 0), Vector(0, 0, 1), 2.75),  # 3
    Part.Circle(Vector(-43.2624, 133.1479, 0), Vector(0, 0, 1), 2.75),  # 4
    Part.Circle(Vector(43.2624, 133.1479, 0), Vector(0, 0, 1), 2.75),  # 5
    Part.Circle(Vector(113.2624, 82.2899, 0), Vector(0, 0, 1), 2.75),  # 6
    Part.Circle(Vector(140, 0, 0), Vector(0, 0, 1), 2.75),  # 7
    Part.Circle(Vector(113.2624, -82.2899, 0), Vector(0, 0, 1), 2.75),  # 8
    Part.Circle(Vector(43.2624, -133.1479, 0), Vector(0, 0, 1), 2.75),  # 9
], False)
sketch6.addConstraint([
    Sketcher.Constraint("Equal", 0, 1),
    Sketcher.Constraint("Equal", 1, 2),
    Sketcher.Constraint("Equal", 2, 3),
    Sketcher.Constraint("Equal", 3, 4),
    Sketcher.Constraint("Equal", 4, 5),
    Sketcher.Constraint("Equal", 5, 6),
    Sketcher.Constraint("Equal", 6, 7),
    Sketcher.Constraint("Equal", 7, 8),
    Sketcher.Constraint("Equal", 8, 9),
    Sketcher.Constraint("Symmetric", 0, 3, 5, 3, -1, 1),
    Sketcher.Constraint("Symmetric", 1, 3, 6, 3, -1, 1),
    Sketcher.Constraint("Symmetric", 2, 3, 7, 3, -1, 1),
    Sketcher.Constraint("Symmetric", 3, 3, 8, 3, -1, 1),
    Sketcher.Constraint("Symmetric", 4, 3, 9, 3, -1, 1),
    Sketcher.Constraint("Symmetric", 4, 3, 5, 3, -2),
    Sketcher.Constraint("Symmetric", 3, 3, 6, 3, -2),
    Sketcher.Constraint("PointOnObject", 2, 3, -1),
    Sketcher.Constraint("Diameter", 0, Q("5.5 mm")),
    Sketcher.Constraint("DistanceX", 2, 3, -1, 1, Q("140 mm")),
    Sketcher.Constraint("DistanceX", 1, 3, 0, 3, Q("70 mm")),
    Sketcher.Constraint("DistanceY", 1, 3, -1, 1, Q("82.29 mm")),
    Sketcher.Constraint("DistanceY", 0, 3, -1, 1, Q("133.148 mm")),
    Sketcher.Constraint("DistanceX", 0, 3, -1, 1, Q("43.2624 mm")),
])
doc.recompute()
hole = body.newObject("PartDesign::Hole", "Hole")
hole.Profile = sketch6
hole.ThreadType = "None"
hole.Diameter = 5.5
hole.DepthType = "ThroughAll"
hole.HoleCutType = "Counterbore"
hole.HoleCutDiameter = 10.475
hole.HoleCutDepth = 7.375

# Sketch on YZ plane
sketch7 = body.newObject("Sketcher::SketchObject", "Sketch006")
sketch7.AttachmentSupport = (doc.getObject("YZ_Plane"), [""])
sketch7.MapMode = "FlatFace"
add_polygon(sketch7, [(2, -112.5), (-2, -112.5), (-2, -116.5), (2, -116.5)])  # lines 0-3
add_polygon(sketch7, [(10.875, -116.5), (14.875, -116.5), (14.875, -112.5), (10.875, -112.5)])  # lines 4-7
sketch7.addConstraint([
    Sketcher.Constraint("Horizontal", 0),
    Sketcher.Constraint("Vertical", 1),
    Sketcher.Constraint("Horizontal", 2),
    Sketcher.Constraint("Vertical", 3),
    Sketcher.Constraint("Horizontal", 4),
    Sketcher.Constraint("Vertical", 5),
    Sketcher.Constraint("Horizontal", 6),
    Sketcher.Constraint("Vertical", 7),
    Sketcher.Constraint("Horizontal", 2, 2, 4, 2),
    Sketcher.Constraint("Horizontal", 3, 2, 5, 2),
    Sketcher.Constraint("Equal", 2, 4),
    Sketcher.Constraint("Equal", 6, 1),
    Sketcher.Constraint("DistanceX", 0, 2, 0, 1, Q("4 mm")),
    Sketcher.Constraint("DistanceX", 0, 2, -1, 1, Q("2 mm")),
    Sketcher.Constraint("DistanceY", 0, 2, -1, 1, Q("112.5 mm")),
    Sketcher.Constraint("DistanceX", -1, 1, 4, 2, Q("14.875 mm")),
])
groove = body.newObject("PartDesign::Groove", "Groove")
groove.Profile = sketch7
groove.ReferenceAxis = (sketch7, ["H_Axis"])
groove.Angle = 360

doc.recompute()
